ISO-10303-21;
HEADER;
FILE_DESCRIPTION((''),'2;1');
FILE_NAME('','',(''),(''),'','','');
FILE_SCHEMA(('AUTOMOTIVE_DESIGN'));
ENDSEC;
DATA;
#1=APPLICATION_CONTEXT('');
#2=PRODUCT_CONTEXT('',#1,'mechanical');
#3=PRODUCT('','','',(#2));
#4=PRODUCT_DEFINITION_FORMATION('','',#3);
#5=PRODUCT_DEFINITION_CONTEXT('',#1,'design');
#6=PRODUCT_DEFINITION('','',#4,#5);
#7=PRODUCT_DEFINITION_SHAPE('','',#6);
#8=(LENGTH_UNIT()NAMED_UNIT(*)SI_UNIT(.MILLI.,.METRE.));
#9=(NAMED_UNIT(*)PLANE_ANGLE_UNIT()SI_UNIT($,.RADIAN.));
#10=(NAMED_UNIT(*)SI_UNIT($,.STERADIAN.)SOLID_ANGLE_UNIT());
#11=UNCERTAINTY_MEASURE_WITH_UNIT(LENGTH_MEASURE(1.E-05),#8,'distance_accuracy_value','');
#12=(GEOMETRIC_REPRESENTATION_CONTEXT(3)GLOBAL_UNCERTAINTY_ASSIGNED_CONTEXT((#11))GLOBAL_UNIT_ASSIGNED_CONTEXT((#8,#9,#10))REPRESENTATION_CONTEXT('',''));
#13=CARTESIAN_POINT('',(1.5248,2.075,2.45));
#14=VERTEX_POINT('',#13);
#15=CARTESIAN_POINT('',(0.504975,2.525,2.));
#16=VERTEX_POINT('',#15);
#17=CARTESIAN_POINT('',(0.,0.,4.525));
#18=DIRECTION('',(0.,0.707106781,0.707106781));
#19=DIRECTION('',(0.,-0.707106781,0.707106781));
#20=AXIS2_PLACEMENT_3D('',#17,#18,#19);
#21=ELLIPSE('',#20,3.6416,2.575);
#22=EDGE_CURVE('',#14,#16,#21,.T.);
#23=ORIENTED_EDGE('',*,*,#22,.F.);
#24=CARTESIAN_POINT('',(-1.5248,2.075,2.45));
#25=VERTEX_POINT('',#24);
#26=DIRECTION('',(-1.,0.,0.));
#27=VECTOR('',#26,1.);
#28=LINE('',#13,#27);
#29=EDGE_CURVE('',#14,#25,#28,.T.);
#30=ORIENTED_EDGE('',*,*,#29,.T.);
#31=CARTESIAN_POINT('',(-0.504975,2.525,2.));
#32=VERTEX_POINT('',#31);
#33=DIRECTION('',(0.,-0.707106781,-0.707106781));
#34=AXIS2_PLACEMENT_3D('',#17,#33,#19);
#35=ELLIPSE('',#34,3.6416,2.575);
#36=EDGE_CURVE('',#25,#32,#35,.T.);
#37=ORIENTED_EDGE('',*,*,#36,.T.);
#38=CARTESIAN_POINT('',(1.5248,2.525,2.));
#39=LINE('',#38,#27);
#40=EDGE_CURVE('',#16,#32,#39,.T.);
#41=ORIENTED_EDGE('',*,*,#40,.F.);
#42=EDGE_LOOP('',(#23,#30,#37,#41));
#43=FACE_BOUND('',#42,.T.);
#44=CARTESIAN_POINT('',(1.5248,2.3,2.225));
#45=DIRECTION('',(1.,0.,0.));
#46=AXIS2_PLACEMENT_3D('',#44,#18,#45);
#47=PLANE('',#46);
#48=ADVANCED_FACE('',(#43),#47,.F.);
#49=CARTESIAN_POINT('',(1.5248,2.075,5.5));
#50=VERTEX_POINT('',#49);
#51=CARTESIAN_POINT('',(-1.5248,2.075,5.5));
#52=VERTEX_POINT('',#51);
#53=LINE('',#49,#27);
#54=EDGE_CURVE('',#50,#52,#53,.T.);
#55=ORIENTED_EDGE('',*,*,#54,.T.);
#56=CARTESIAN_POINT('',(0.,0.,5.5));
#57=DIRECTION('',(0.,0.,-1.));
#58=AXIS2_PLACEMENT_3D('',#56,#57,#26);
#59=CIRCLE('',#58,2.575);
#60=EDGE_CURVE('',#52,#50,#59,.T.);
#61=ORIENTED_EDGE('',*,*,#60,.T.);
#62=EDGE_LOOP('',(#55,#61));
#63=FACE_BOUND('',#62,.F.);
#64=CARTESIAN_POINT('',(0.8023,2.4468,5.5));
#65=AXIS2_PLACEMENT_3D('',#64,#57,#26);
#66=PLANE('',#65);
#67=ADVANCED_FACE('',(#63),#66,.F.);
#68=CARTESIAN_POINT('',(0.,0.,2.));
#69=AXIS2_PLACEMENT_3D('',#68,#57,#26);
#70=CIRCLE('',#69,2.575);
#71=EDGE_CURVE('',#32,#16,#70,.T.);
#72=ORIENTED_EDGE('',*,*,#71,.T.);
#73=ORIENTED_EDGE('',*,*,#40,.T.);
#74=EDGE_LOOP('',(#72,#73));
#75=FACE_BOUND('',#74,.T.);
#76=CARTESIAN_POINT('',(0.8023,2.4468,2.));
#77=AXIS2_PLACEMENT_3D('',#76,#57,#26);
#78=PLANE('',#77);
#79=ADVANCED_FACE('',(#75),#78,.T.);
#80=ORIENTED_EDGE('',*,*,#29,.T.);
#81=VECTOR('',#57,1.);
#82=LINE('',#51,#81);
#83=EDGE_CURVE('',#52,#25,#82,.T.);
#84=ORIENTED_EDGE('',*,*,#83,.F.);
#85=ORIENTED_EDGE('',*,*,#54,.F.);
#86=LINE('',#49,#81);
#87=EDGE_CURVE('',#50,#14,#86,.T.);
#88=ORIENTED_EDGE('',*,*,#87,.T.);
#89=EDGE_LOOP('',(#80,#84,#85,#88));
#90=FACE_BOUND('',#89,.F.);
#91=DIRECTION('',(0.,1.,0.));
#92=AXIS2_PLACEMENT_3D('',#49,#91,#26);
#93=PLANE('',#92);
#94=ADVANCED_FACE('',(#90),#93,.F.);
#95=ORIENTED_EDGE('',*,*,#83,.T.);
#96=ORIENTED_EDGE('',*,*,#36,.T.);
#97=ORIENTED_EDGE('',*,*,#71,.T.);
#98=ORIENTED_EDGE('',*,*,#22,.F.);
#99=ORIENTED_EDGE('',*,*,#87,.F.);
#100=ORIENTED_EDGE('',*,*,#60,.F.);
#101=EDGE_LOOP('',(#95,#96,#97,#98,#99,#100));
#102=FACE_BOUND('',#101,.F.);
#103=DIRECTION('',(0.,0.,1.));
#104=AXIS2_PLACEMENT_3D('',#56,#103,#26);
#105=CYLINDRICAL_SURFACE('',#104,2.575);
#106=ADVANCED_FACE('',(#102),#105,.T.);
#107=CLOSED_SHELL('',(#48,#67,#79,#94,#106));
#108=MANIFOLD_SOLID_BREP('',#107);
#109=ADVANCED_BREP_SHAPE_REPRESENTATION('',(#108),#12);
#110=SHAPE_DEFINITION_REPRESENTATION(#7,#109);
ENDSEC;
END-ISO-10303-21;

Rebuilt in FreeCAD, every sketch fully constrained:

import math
import FreeCAD as App
import Part
import Sketcher


def edges_at(feature, points):
    """Names of the edges that pass closest to the given points."""
    edges = feature.Shape.Edges
    near = lambda p: min(range(len(edges)), key=lambda i: edges[i].distToShape(Part.Vertex(*p))[0])
    return sorted({f"Edge{near(p) + 1}" for p in points})

doc = App.newDocument("Part")
body = doc.addObject("PartDesign::Body", "Body")

# Sketch on XY plane
sketch1 = body.newObject("Sketcher::SketchObject", "Sketch")
sketch1.AttachmentSupport = (doc.getObject("XY_Plane"), [""])
sketch1.MapMode = "FlatFace"
sketch1.AttachmentOffset = App.Placement(App.Vector(0, 0, 5.5), App.Rotation())
sketch1.addGeometry([
    Part.LineSegment(App.Vector(1.5, 2.1, 0), App.Vector(-1.5, 2.1, 0)),
    Part.ArcOfCircle(Part.Circle(App.Vector(0, 0, 0), App.Vector(0, 0, 1), 2.6), math.radians(54), math.radians(126)),
], False)
sketch1.addConstraint([
    Sketcher.Constraint("Coincident", 0, 1, 1, 1),
    Sketcher.Constraint("Coincident", 1, 2, 0, 2),
    Sketcher.Constraint("Horizontal", 0),
    Sketcher.Constraint("Coincident", 1, 3, -1, 1),
    Sketcher.Constraint("Radius", 1, 2.575),
    Sketcher.Constraint("DistanceX", 0, 2, 0, 1, 3.0496),
])
pad1 = body.newObject("PartDesign::Pad", "Pad")
pad1.Profile = sketch1
pad1.Length = 3.5
pad1.Reversed = True
doc.recompute()

chamfer = body.newObject("PartDesign::Chamfer", "Chamfer")
chamfer.Base = (pad1, edges_at(pad1, [(0, 2.075, 2)]))
chamfer.Size = 0.45

doc.recompute()
